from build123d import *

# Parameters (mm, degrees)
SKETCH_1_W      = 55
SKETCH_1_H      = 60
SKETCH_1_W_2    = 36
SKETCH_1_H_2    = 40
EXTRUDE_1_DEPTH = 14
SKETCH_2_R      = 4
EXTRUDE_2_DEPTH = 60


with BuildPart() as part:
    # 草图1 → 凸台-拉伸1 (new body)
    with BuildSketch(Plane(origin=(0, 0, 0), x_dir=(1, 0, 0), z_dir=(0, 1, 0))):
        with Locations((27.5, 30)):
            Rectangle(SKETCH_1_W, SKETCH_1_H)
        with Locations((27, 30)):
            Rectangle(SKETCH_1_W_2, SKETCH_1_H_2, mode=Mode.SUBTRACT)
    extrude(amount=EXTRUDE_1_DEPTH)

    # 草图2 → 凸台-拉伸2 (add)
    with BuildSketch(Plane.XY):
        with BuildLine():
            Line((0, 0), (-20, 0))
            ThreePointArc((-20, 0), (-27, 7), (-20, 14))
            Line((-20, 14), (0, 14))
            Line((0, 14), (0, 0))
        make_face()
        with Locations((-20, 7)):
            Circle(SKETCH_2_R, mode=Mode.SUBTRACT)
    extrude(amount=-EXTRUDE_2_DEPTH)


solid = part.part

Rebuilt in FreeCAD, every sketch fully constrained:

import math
import FreeCAD as App
import Part
import Sketcher
from FreeCAD import Vector

doc = App.newDocument("Part")
body = doc.addObject("PartDesign::Body", "Body")

# Sketch on XZ plane
sketch1 = doc.addObject("Sketcher::SketchObject", "Sketch")
body.addObject(sketch1)
sketch1.AttachmentSupport = (doc.XZ_Plane, [""])
sketch1.MapMode = "FlatFace"
sketch1.addGeometry([
    Part.LineSegment(Vector(0, -60, 0), Vector(0, 0, 0)),  # 0
    Part.LineSegment(Vector(0, 0, 0), Vector(55, 0, 0)),  # 1
    Part.LineSegment(Vector(55, 0, 0), Vector(55, -60, 0)),  # 2
    Part.LineSegment(Vector(55, -60, 0), Vector(0, -60, 0)),  # 3
    Part.LineSegment(Vector(45, -10, 0), Vector(9, -10, 0)),  # 4
    Part.LineSegment(Vector(9, -10, 0), Vector(9, -50, 0)),  # 5
    Part.LineSegment(Vector(9, -50, 0), Vector(45, -50, 0)),  # 6
    Part.LineSegment(Vector(45, -50, 0), Vector(45, -10, 0)),  # 7
], False)
sketch1.addConstraint([
    Sketcher.Constraint("Coincident", 0, 2, 1, 1),
    Sketcher.Constraint("Coincident", 1, 2, 2, 1),
    Sketcher.Constraint("Coincident", 2, 2, 3, 1),
    Sketcher.Constraint("Coincident", 3, 2, 0, 1),
    Sketcher.Constraint("Coincident", 4, 2, 5, 1),
    Sketcher.Constraint("Coincident", 5, 2, 6, 1),
    Sketcher.Constraint("Coincident", 6, 2, 7, 1),
    Sketcher.Constraint("Coincident", 7, 2, 4, 1),
    Sketcher.Constraint("Vertical", 0),
    Sketcher.Constraint("Horizontal", 1),
    Sketcher.Constraint("Vertical", 2),
    Sketcher.Constraint("Horizontal", 3),
    Sketcher.Constraint("Horizontal", 4),
    Sketcher.Constraint("Vertical", 5),
    Sketcher.Constraint("Horizontal", 6),
    Sketcher.Constraint("Vertical", 7),
    Sketcher.Constraint("Coincident", 0, 2, -1, 1),
    Sketcher.Constraint("DistanceX", 1, 1, 1, 2, 55.0),
    Sketcher.Constraint("DistanceX", 4, 2, 4, 1, 36.0),
    Sketcher.Constraint("DistanceY", 0, 1, 0, 2, 60.0),
    Sketcher.Constraint("DistanceY", 5, 2, 5, 1, 40.0),
    Sketcher.Constraint("DistanceX", -1, 1, 4, 2, 9.0),
    Sketcher.Constraint("DistanceY", 4, 2, -1, 1, 10.0),
])
pad1 = doc.addObject("PartDesign::Pad", "Pad")
body.addObject(pad1)
pad1.Profile = sketch1
pad1.Length = 14
pad1.Reversed = True

# Sketch on XY plane
sketch2 = doc.addObject("Sketcher::SketchObject", "Sketch001")
body.addObject(sketch2)
sketch2.AttachmentSupport = (doc.XY_Plane, [""])
sketch2.MapMode = "FlatFace"
sketch2.addGeometry([
    Part.LineSegment(Vector(-20, 0, 0), Vector(0, 0, 0)),  # 0
    Part.LineSegment(Vector(0, 0, 0), Vector(0, 14, 0)),  # 1
    Part.LineSegment(Vector(0, 14, 0), Vector(-20, 14, 0)),  # 2
    Part.ArcOfCircle(Part.Circle(Vector(-20, 7, 0), Vector(0, 0, 1), 7), math.radians(90), math.radians(270)),  # 3
    Part.Circle(Vector(-20, 7, 0), Vector(0, 0, 1), 4),  # 4
], False)
sketch2.addConstraint([
    Sketcher.Constraint("Coincident", 0, 2, 1, 1),
    Sketcher.Constraint("Coincident", 1, 2, 2, 1),
    Sketcher.Constraint("Tangent", 2, 2, 3, 1),
    Sketcher.Constraint("Tangent", 3, 2, 0, 1),
    Sketcher.Constraint("Horizontal", 0),
    Sketcher.Constraint("Vertical", 1),
    Sketcher.Constraint("Horizontal", 2),
    Sketcher.Constraint("Coincident", 0, 2, -1, 1),
    Sketcher.Constraint("Coincident", 4, 3, 3, 3),
    Sketcher.Constraint("Diameter", 4, 8.0),
    Sketcher.Constraint("Radius", 3, 7.0),
    Sketcher.Constraint("DistanceX", 0, 1, 0, 2, 20.0),
])
pad2 = doc.addObject("PartDesign::Pad", "Pad001")
body.addObject(pad2)
pad2.Profile = sketch2
pad2.Length = 60
pad2.Reversed = True

doc.recompute()
